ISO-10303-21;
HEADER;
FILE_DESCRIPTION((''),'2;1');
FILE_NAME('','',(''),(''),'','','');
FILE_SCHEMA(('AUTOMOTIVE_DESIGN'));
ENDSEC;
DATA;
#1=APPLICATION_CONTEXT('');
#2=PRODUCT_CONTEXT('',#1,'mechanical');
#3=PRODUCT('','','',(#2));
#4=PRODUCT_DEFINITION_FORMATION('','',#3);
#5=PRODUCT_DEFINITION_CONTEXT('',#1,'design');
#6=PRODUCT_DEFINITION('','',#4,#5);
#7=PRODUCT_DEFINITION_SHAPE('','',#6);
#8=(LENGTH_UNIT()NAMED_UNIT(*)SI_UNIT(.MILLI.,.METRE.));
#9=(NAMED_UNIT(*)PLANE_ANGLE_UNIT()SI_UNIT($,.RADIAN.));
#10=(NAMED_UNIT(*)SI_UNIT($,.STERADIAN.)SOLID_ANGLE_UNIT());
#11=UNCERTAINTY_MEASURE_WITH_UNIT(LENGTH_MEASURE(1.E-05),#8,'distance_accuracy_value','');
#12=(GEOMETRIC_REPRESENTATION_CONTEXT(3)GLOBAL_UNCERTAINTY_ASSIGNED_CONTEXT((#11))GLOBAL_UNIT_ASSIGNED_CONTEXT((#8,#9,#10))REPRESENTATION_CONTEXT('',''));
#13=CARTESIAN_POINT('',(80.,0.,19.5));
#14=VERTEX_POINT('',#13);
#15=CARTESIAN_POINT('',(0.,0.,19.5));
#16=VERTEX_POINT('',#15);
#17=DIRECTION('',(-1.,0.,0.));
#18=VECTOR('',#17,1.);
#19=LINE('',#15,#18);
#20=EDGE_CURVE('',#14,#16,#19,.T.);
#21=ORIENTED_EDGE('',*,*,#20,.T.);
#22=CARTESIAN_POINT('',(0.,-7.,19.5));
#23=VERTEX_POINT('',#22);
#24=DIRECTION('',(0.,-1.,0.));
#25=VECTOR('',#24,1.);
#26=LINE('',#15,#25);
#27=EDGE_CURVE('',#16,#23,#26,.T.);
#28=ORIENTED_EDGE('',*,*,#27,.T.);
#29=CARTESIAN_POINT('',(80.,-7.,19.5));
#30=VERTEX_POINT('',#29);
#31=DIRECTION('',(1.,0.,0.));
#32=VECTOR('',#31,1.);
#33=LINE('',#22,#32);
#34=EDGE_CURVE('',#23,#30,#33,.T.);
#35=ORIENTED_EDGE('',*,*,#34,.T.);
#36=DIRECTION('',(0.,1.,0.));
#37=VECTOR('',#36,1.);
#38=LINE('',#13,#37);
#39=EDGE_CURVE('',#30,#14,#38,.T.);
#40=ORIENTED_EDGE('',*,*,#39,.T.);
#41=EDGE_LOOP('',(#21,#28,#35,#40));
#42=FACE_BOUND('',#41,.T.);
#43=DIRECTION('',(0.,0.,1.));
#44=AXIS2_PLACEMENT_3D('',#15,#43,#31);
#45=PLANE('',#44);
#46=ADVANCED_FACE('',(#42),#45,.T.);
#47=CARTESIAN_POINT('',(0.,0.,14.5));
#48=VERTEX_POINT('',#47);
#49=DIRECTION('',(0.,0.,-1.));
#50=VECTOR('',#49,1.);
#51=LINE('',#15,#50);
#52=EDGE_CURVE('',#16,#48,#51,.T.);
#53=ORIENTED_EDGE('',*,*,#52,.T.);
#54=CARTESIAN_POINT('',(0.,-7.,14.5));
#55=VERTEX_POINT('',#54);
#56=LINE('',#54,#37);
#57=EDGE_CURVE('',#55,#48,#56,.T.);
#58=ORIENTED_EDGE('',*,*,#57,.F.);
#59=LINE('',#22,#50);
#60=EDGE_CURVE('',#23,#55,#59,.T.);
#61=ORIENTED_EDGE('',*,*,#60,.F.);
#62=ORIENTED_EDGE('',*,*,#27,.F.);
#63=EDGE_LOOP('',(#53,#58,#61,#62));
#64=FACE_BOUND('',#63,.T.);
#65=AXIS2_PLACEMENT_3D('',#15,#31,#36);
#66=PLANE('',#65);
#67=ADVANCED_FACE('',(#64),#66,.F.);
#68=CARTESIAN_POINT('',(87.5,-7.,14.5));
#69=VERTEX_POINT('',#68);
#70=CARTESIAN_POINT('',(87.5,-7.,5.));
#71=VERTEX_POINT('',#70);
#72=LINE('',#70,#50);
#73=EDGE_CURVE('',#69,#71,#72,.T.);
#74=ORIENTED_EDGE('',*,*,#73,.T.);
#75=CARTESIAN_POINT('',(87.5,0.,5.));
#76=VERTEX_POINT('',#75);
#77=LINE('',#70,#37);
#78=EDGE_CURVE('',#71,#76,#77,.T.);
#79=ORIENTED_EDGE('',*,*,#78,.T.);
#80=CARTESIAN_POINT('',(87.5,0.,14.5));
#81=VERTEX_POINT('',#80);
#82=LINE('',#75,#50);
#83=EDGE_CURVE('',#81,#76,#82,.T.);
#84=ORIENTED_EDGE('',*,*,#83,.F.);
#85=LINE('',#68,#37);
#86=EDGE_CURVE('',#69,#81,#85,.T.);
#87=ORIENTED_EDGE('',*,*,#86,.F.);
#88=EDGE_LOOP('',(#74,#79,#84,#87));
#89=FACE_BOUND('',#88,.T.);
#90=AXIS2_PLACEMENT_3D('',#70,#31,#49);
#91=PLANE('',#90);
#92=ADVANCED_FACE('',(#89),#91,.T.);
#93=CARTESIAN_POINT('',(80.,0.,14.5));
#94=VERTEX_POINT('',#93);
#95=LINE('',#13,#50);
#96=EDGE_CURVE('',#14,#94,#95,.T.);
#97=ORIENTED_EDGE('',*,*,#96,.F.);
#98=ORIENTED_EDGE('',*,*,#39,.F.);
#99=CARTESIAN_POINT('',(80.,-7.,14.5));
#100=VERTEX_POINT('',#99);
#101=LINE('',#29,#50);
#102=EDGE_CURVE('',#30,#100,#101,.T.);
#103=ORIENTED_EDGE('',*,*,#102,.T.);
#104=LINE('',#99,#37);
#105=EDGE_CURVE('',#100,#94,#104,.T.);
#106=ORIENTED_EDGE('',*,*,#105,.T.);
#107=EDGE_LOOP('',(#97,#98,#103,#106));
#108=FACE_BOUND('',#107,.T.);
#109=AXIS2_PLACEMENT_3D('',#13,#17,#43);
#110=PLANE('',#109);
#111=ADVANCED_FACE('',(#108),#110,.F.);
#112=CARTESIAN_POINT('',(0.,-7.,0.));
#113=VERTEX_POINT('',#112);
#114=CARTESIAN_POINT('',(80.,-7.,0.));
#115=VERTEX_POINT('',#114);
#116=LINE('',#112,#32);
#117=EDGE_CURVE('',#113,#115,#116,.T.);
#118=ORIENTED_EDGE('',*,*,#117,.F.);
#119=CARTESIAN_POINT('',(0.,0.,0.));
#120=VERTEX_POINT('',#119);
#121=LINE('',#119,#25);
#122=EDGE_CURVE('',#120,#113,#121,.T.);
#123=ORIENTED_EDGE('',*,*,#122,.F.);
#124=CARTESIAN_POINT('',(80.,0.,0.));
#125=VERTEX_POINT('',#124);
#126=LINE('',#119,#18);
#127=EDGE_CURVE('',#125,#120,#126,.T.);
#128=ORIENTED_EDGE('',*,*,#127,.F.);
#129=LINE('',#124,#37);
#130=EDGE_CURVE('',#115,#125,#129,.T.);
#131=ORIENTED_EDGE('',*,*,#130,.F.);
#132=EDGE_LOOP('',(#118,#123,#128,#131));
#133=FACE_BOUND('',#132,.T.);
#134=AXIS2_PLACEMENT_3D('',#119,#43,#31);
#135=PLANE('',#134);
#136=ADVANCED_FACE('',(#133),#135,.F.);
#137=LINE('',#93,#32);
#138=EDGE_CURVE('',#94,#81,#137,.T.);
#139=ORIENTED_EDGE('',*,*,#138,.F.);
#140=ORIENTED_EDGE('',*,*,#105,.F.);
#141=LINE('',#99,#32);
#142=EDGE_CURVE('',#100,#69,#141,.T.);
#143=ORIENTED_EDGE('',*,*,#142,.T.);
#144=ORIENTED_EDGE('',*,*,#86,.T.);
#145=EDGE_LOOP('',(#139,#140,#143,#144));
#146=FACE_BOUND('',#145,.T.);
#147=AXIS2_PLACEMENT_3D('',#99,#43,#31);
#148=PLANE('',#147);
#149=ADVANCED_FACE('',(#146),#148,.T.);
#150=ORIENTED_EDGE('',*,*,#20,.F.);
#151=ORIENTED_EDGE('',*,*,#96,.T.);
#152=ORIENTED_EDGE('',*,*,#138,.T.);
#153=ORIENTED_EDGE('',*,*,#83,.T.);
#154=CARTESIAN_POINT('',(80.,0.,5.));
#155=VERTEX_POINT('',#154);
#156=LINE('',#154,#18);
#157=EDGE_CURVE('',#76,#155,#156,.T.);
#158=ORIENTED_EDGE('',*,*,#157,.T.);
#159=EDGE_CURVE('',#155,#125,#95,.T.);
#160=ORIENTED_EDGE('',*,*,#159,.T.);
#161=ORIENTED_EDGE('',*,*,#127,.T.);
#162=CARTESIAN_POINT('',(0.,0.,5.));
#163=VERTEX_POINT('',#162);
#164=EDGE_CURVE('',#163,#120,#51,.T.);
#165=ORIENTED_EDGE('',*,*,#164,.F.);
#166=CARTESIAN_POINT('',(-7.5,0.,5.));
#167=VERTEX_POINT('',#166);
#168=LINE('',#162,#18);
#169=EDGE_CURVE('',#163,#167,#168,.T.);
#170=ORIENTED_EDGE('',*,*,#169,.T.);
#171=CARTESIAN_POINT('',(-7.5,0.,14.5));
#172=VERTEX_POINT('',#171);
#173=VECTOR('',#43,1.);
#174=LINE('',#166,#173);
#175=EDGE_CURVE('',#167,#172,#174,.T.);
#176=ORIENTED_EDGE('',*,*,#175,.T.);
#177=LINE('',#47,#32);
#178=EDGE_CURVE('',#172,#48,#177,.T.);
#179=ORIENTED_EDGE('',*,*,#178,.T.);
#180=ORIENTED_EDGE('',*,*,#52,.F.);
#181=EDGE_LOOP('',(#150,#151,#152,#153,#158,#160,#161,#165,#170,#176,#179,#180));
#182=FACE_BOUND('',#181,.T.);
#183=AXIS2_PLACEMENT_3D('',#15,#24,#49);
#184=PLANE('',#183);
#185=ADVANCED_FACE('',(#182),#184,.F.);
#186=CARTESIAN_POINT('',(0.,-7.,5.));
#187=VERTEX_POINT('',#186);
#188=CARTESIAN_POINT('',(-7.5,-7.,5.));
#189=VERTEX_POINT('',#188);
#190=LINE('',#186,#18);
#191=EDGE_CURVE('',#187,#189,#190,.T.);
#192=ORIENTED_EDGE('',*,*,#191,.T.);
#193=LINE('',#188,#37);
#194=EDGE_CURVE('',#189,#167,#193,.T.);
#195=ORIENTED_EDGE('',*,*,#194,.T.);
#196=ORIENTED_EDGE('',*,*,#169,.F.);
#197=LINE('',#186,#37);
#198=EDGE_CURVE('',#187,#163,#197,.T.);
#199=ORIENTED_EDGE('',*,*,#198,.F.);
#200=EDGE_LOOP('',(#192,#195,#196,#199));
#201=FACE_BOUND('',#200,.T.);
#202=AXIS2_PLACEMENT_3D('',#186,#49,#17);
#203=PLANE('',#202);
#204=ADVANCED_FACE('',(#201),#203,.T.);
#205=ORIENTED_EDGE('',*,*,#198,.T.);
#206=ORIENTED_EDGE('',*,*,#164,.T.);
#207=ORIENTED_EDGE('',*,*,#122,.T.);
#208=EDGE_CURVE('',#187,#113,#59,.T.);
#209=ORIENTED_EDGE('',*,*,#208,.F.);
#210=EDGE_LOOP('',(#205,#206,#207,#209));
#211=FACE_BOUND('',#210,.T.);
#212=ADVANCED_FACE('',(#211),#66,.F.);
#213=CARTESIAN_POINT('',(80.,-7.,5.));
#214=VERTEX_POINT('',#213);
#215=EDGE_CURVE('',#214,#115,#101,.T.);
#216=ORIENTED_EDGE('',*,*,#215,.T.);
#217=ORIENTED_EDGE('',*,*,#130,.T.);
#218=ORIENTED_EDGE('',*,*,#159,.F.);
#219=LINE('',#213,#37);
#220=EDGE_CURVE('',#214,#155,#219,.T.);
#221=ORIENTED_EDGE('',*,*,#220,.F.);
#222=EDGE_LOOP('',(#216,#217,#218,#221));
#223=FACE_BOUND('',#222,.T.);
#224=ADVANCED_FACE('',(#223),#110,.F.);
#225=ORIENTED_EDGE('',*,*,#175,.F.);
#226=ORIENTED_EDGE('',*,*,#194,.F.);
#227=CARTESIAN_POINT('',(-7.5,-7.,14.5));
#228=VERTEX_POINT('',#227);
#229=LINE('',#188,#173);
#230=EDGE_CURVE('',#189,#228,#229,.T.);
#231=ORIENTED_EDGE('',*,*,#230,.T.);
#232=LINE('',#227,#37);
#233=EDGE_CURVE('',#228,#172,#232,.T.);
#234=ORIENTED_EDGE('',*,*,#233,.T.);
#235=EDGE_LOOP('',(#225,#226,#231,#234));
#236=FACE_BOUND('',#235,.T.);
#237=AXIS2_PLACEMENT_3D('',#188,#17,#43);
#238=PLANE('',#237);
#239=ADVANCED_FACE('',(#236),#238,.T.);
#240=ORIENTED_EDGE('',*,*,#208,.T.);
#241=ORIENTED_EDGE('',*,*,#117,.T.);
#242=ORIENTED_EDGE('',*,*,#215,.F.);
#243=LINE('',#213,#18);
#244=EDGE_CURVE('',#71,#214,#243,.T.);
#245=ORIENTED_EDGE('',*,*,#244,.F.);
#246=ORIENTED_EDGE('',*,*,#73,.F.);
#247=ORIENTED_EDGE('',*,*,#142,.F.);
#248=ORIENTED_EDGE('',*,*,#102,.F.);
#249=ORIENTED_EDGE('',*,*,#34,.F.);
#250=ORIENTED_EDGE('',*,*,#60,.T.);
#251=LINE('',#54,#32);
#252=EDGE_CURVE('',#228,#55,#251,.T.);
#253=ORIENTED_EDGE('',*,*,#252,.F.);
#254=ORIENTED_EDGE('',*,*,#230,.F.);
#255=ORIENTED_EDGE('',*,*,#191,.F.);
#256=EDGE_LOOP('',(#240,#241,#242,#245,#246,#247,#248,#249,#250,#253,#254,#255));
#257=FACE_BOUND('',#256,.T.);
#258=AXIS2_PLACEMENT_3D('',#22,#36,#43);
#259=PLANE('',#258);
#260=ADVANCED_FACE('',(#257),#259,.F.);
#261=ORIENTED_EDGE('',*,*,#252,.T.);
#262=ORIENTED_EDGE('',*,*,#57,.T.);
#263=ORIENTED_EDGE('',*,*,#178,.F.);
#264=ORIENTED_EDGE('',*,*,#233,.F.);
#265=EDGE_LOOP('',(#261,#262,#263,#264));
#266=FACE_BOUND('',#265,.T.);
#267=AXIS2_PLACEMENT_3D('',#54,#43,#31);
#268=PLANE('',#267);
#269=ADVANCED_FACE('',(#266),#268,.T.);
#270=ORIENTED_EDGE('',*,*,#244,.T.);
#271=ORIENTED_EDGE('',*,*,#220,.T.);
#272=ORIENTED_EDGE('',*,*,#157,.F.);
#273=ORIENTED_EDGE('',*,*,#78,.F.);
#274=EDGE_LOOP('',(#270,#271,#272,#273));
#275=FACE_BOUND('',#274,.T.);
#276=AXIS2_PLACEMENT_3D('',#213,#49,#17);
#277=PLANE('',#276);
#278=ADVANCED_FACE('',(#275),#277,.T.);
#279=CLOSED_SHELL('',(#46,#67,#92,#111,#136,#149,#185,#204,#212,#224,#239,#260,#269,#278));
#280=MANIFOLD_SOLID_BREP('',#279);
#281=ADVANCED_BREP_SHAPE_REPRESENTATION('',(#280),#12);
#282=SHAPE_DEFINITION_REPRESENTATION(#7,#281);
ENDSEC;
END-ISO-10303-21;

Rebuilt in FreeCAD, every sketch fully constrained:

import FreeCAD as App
import Part
import Sketcher
from FreeCAD import Vector
Q = App.Units.Quantity

doc = App.newDocument("Part")
params = doc.addObject("Spreadsheet::Sheet", "Params")
for row, (alias, value) in enumerate([
    ("sketch1_width", "80 mm"),
    ("sketch1_height", "7 mm"),
    ("pad1_length", "19.5 mm"),
    ("sketch2_width", "7.5 mm"),
    ("sketch2_height", "9.5 mm"),
    ("pad2_length", "7 mm"),
], start=1):
    params.set(f"A{row}", alias)
    params.set(f"B{row}", "=" + value)
    params.setAlias(f"B{row}", alias)

body = doc.addObject("PartDesign::Body", "Body")

# Sketch on XY plane
sketch1 = body.newObject("Sketcher::SketchObject", "Sketch")
sketch1.AttachmentSupport = (doc.getObject("XY_Plane"), [""])
sketch1.MapMode = "FlatFace"
sketch1.addGeometry([
    Part.LineSegment(Vector(0, 0, 0), Vector(0, -7, 0)),
    Part.LineSegment(Vector(0, -7, 0), Vector(80, -7, 0)),
    Part.LineSegment(Vector(80, -7, 0), Vector(80, 0, 0)),
    Part.LineSegment(Vector(80, 0, 0), Vector(0, 0, 0)),
], False)
sketch1.addConstraint([
    Sketcher.Constraint("Coincident", 0, 2, 1, 1),
    Sketcher.Constraint("Coincident", 1, 2, 2, 1),
    Sketcher.Constraint("Coincident", 2, 2, 3, 1),
    Sketcher.Constraint("Coincident", 3, 2, 0, 1),
    Sketcher.Constraint("Vertical", 0),
    Sketcher.Constraint("Horizontal", 1),
    Sketcher.Constraint("Vertical", 2),
    Sketcher.Constraint("Horizontal", 3),
    Sketcher.Constraint("Coincident", 3, 2, -1, 1),
    Sketcher.Constraint("DistanceX", 1, 1, 1, 2, Q("80 mm")),
    Sketcher.Constraint("DistanceY", 0, 2, 0, 1, Q("7 mm")),
])
sketch1.setExpression("Constraints[9]", "Params.sketch1_width")
sketch1.setExpression("Constraints[10]", "Params.sketch1_height")
pad1 = body.newObject("PartDesign::Pad", "Pad")
pad1.Profile = sketch1
pad1.setExpression("Length", "Params.pad1_length")

# Sketch on XZ plane
sketch2 = body.newObject("Sketcher::SketchObject", "Sketch001")
sketch2.AttachmentSupport = (doc.getObject("XZ_Plane"), [""])
sketch2.MapMode = "FlatFace"
sketch2.addGeometry([
    Part.LineSegment(Vector(-8, 5, 0), Vector(-8, 14, 0)),  # 0
    Part.LineSegment(Vector(-8, 14, 0), Vector(0, 14, 0)),  # 1
    Part.LineSegment(Vector(0, 14, 0), Vector(0, 5, 0)),  # 2
    Part.LineSegment(Vector(0, 5, 0), Vector(-8, 5, 0)),  # 3
    Part.LineSegment(Vector(80, 5, 0), Vector(80, 14, 0)),  # 4
    Part.LineSegment(Vector(80, 14, 0), Vector(88, 14, 0)),  # 5
    Part.LineSegment(Vector(88, 14, 0), Vector(88, 5, 0)),  # 6
    Part.LineSegment(Vector(88, 5, 0), Vector(80, 5, 0)),  # 7
], False)
sketch2.addConstraint([
    Sketcher.Constraint("Coincident", 0, 2, 1, 1),
    Sketcher.Constraint("Coincident", 1, 2, 2, 1),
    Sketcher.Constraint("Coincident", 2, 2, 3, 1),
    Sketcher.Constraint("Coincident", 3, 2, 0, 1),
    Sketcher.Constraint("Coincident", 4, 2, 5, 1),
    Sketcher.Constraint("Coincident", 5, 2, 6, 1),
    Sketcher.Constraint("Coincident", 6, 2, 7, 1),
    Sketcher.Constraint("Coincident", 7, 2, 4, 1),
    Sketcher.Constraint("Vertical", 0),
    Sketcher.Constraint("Horizontal", 1),
    Sketcher.Constraint("Vertical", 2),
    Sketcher.Constraint("Horizontal", 3),
    Sketcher.Constraint("Vertical", 4),
    Sketcher.Constraint("Horizontal", 5),
    Sketcher.Constraint("Vertical", 6),
    Sketcher.Constraint("Horizontal", 7),
    Sketcher.Constraint("PointOnObject", 1, 2, -2),
    Sketcher.Constraint("Horizontal", 1, 2, 4, 2),
    Sketcher.Constraint("Horizontal", 3, 2, 6, 2),
    Sketcher.Constraint("Equal", 3, 5),
    Sketcher.Constraint("DistanceX", 1, 1, 1, 2, Q("7.5 mm")),
    Sketcher.Constraint("DistanceY", 0, 1, 0, 2, Q("9.5 mm")),
    Sketcher.Constraint("DistanceY", -1, 1, 2, 2, Q("5 mm")),
    Sketcher.Constraint("DistanceX", -1, 1, 4, 2, Q("80 mm")),
])
sketch2.setExpression("Constraints[20]", "Params.sketch2_width")
sketch2.setExpression("Constraints[21]", "Params.sketch2_height")
pad2 = body.newObject("PartDesign::Pad", "Pad001")
pad2.Profile = sketch2
pad2.setExpression("Length", "Params.pad2_length")

doc.recompute()
